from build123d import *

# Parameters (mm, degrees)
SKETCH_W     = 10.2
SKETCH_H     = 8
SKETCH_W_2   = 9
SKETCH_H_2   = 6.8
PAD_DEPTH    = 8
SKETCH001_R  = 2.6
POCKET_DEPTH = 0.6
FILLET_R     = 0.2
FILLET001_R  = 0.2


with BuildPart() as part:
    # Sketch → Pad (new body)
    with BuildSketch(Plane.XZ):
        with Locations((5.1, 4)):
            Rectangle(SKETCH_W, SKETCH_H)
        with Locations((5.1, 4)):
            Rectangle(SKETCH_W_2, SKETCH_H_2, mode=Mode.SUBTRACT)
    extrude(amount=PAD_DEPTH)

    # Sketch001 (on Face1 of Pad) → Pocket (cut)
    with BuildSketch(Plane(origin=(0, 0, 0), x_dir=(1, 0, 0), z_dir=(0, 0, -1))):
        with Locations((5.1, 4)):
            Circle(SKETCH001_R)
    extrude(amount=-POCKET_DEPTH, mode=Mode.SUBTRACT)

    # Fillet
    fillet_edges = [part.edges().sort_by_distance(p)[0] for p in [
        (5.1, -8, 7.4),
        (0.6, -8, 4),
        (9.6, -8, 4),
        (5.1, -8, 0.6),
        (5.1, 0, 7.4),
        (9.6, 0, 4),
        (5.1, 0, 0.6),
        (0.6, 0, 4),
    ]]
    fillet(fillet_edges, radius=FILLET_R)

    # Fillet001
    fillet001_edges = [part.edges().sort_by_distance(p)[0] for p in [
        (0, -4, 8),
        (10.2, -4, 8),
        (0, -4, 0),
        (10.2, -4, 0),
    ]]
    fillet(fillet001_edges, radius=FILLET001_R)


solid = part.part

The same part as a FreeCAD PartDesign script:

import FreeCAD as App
import Part
import Sketcher
Q = App.Units.Quantity


def edges_at(feature, points):
    """Names of the edges that pass closest to the given points."""
    edges = feature.Shape.Edges
    near = lambda p: min(range(len(edges)), key=lambda i: edges[i].distToShape(Part.Vertex(*p))[0])
    return sorted({f"Edge{near(p) + 1}" for p in points})

doc = App.newDocument("Part")
body = doc.addObject("PartDesign::Body", "Body")

sketch1 = body.newObject("Sketcher::SketchObject", "Sketch")
sketch1.AttachmentSupport = (doc.getObject("XZ_Plane"), [""])
sketch1.MapMode = "FlatFace"
sketch1.addGeometry(Part.LineSegment(App.Vector(0, 8, 0), App.Vector(0, 0, 0)), False)
sketch1.addGeometry(Part.LineSegment(App.Vector(0, 0, 0), App.Vector(10, 0, 0)), False)
sketch1.addGeometry(Part.LineSegment(App.Vector(10, 0, 0), App.Vector(10, 8, 0)), False)
sketch1.addGeometry(Part.LineSegment(App.Vector(10, 8, 0), App.Vector(0, 8, 0)), False)
sketch1.addGeometry(Part.LineSegment(App.Vector(10, 1, 0), App.Vector(1, 1, 0)), False)
sketch1.addGeometry(Part.LineSegment(App.Vector(1, 1, 0), App.Vector(1, 7, 0)), False)
sketch1.addGeometry(Part.LineSegment(App.Vector(1, 7, 0), App.Vector(10, 7, 0)), False)
sketch1.addGeometry(Part.LineSegment(App.Vector(10, 7, 0), App.Vector(10, 1, 0)), False)
sketch1.addConstraint(Sketcher.Constraint("Coincident", 0, 2, 1, 1))
sketch1.addConstraint(Sketcher.Constraint("Coincident", 1, 2, 2, 1))
sketch1.addConstraint(Sketcher.Constraint("Coincident", 2, 2, 3, 1))
sketch1.addConstraint(Sketcher.Constraint("Coincident", 3, 2, 0, 1))
sketch1.addConstraint(Sketcher.Constraint("Coincident", 4, 2, 5, 1))
sketch1.addConstraint(Sketcher.Constraint("Coincident", 5, 2, 6, 1))
sketch1.addConstraint(Sketcher.Constraint("Coincident", 6, 2, 7, 1))
sketch1.addConstraint(Sketcher.Constraint("Coincident", 7, 2, 4, 1))
sketch1.addConstraint(Sketcher.Constraint("Vertical", 0))
sketch1.addConstraint(Sketcher.Constraint("Horizontal", 1))
sketch1.addConstraint(Sketcher.Constraint("Vertical", 2))
sketch1.addConstraint(Sketcher.Constraint("Horizontal", 3))
sketch1.addConstraint(Sketcher.Constraint("Horizontal", 4))
sketch1.addConstraint(Sketcher.Constraint("Vertical", 5))
sketch1.addConstraint(Sketcher.Constraint("Horizontal", 6))
sketch1.addConstraint(Sketcher.Constraint("Vertical", 7))
sketch1.addConstraint(Sketcher.Constraint("Coincident", 0, 2, -1, 1))
sketch1.addConstraint(Sketcher.Constraint("DistanceX", 4, 2, 4, 1, Q("9 mm")))
sketch1.addConstraint(Sketcher.Constraint("DistanceY", 0, 2, 0, 1, Q("8 mm")))
sketch1.addConstraint(Sketcher.Constraint("DistanceX", 1, 1, 1, 2, Q("10.2 mm")))
sketch1.addConstraint(Sketcher.Constraint("DistanceY", 5, 1, 5, 2, Q("6.8 mm")))
sketch1.addConstraint(Sketcher.Constraint("DistanceX", -1, 1, 4, 2, Q("0.6 mm")))
sketch1.addConstraint(Sketcher.Constraint("DistanceY", -1, 1, 4, 2, Q("0.6 mm")))
pad1 = body.newObject("PartDesign::Pad", "Pad")
pad1.Profile = sketch1
pad1.Length = 8

sketch2 = body.newObject("Sketcher::SketchObject", "Sketch001")
sketch2.AttachmentSupport = (doc.getObject("XY_Plane"), [""])
sketch2.MapMode = "FlatFace"
sketch2.addGeometry(Part.Circle(App.Vector(5.1, -4, 0), App.Vector(0, 0, 1), 2.6), False)
sketch2.addConstraint(Sketcher.Constraint("Diameter", 0, Q("5.2 mm")))
sketch2.addConstraint(Sketcher.Constraint("DistanceY", 0, 3, -1, 1, Q("4 mm")))
sketch2.addConstraint(Sketcher.Constraint("DistanceX", -1, 1, 0, 3, Q("5.1 mm")))
pocket1 = body.newObject("PartDesign::Pocket", "Pocket")
pocket1.Profile = sketch2
pocket1.Length = 0.6
pocket1.Reversed = True
doc.recompute()

fillet = body.newObject("PartDesign::Fillet", "Fillet")
fillet.Base = (pocket1, edges_at(pocket1, [
    (5.1, -8, 7.4),
    (0.6, -8, 4),
    (9.6, -8, 4),
    (5.1, -8, 0.6),
    (5.1, 0, 7.4),
    (9.6, 0, 4),
    (5.1, 0, 0.6),
    (0.6, 0, 4),
]))
fillet.Radius = 0.2
doc.recompute()

fillet2 = body.newObject("PartDesign::Fillet", "Fillet001")
fillet2.Base = (fillet, edges_at(fillet, [
    (0, -4, 8),
    (10.2, -4, 8),
    (0, -4, 0),
    (10.2, -4, 0),
]))
fillet2.Radius = 0.2

doc.recompute()
